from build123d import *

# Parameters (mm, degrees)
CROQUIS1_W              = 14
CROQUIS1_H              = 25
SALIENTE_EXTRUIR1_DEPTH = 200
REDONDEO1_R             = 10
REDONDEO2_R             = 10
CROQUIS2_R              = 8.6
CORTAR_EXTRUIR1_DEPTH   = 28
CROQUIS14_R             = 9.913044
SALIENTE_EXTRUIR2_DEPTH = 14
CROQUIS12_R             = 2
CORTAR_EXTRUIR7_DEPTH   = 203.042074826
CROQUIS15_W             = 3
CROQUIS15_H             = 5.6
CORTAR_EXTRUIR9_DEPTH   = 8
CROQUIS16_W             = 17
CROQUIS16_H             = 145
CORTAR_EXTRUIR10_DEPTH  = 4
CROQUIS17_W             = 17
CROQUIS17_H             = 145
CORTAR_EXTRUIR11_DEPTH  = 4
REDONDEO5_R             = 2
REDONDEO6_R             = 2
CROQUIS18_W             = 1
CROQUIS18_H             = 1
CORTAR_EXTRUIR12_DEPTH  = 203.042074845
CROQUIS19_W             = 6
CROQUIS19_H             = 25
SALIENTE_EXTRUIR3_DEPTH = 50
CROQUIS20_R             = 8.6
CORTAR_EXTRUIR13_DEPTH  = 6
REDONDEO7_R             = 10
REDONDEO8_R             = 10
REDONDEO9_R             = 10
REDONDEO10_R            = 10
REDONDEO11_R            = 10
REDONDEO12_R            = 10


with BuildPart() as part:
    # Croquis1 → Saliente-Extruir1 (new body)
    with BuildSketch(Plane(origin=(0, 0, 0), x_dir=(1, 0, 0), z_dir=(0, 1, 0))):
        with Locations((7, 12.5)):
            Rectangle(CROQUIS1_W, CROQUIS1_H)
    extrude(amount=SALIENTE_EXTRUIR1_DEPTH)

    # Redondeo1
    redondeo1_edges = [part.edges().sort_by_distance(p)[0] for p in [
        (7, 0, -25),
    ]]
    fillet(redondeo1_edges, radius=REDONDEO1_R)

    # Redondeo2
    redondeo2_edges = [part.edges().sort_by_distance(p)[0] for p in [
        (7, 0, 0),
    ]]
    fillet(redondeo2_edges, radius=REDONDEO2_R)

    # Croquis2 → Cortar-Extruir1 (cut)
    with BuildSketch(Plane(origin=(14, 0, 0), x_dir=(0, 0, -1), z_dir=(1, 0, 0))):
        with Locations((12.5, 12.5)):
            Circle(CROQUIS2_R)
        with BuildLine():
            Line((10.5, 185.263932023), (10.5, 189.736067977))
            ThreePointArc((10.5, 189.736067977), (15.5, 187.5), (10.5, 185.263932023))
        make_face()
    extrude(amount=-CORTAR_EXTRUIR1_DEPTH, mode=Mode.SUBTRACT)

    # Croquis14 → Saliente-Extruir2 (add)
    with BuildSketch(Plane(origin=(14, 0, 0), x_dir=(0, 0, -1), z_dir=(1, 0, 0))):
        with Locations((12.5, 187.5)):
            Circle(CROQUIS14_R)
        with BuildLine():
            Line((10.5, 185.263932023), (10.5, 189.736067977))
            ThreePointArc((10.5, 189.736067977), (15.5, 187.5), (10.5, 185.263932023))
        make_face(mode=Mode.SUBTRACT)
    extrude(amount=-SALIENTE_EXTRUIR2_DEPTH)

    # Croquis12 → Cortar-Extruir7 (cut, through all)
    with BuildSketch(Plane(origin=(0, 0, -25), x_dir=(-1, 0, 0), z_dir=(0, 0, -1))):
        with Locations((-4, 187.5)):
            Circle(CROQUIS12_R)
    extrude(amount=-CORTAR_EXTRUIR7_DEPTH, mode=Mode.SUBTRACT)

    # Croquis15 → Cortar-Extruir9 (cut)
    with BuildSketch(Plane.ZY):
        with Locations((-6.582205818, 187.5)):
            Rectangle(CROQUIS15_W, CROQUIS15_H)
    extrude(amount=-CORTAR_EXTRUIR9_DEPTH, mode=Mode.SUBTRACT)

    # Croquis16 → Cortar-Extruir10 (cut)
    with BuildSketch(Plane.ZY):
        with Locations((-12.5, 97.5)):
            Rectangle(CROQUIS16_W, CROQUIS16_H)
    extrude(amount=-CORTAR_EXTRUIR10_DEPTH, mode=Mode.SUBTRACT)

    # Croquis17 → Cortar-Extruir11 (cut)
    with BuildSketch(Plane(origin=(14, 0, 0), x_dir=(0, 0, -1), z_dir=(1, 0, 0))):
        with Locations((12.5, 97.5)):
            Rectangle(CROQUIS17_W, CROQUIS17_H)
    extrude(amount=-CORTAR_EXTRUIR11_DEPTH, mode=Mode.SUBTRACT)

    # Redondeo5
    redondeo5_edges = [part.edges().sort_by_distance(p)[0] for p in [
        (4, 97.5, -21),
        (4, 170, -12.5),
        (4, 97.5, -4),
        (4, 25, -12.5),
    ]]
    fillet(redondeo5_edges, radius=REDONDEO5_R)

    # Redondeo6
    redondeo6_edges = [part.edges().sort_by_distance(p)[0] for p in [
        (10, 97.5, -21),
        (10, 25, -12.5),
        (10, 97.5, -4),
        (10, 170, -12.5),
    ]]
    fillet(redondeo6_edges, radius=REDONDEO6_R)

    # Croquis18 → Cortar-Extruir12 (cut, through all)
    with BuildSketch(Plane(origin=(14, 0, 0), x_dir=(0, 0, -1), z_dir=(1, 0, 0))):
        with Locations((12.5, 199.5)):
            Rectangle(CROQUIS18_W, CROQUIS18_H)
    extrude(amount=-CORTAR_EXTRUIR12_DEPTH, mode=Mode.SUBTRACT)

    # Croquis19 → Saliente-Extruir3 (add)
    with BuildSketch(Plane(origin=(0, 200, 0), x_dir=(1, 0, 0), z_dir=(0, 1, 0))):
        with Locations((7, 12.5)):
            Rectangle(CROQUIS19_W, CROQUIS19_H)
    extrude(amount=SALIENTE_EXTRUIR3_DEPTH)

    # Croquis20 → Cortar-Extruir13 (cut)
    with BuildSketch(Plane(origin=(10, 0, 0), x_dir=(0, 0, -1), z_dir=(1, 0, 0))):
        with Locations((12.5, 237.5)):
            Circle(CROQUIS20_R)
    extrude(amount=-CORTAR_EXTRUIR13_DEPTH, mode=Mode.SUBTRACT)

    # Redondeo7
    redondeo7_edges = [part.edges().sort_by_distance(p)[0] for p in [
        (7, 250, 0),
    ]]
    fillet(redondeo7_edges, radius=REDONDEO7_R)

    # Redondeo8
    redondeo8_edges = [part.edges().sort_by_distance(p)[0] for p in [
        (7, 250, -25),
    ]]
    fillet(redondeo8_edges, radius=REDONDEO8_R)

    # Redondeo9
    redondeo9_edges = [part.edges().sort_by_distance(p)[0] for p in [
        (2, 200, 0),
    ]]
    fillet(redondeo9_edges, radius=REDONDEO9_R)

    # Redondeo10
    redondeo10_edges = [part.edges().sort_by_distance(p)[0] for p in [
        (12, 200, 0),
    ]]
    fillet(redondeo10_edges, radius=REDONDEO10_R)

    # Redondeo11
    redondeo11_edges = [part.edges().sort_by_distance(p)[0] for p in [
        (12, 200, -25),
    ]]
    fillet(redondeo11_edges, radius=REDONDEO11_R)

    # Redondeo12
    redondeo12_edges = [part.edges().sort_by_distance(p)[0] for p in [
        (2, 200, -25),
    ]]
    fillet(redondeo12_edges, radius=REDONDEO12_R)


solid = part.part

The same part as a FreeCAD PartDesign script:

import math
import FreeCAD as App
import Part
import Sketcher


def edges_at(feature, points):
    """Names of the edges that pass closest to the given points."""
    edges = feature.Shape.Edges
    near = lambda p: min(range(len(edges)), key=lambda i: edges[i].distToShape(Part.Vertex(*p))[0])
    return sorted({f"Edge{near(p) + 1}" for p in points})

doc = App.newDocument("Part")
body = doc.addObject("PartDesign::Body", "Body")

# Sketch on XZ plane
sketch1 = doc.addObject("Sketcher::SketchObject", "Sketch")
body.addObject(sketch1)
sketch1.AttachmentSupport = (doc.XZ_Plane, [""])
sketch1.MapMode = "FlatFace"
sketch1.addGeometry(Part.LineSegment(App.Vector(0, -25, 0), App.Vector(0, 0, 0)), False)
sketch1.addGeometry(Part.LineSegment(App.Vector(0, 0, 0), App.Vector(14, 0, 0)), False)
sketch1.addGeometry(Part.LineSegment(App.Vector(14, 0, 0), App.Vector(14, -25, 0)), False)
sketch1.addGeometry(Part.LineSegment(App.Vector(14, -25, 0), App.Vector(0, -25, 0)), False)
sketch1.addConstraint(Sketcher.Constraint("Coincident", 0, 2, 1, 1))
sketch1.addConstraint(Sketcher.Constraint("Coincident", 1, 2, 2, 1))
sketch1.addConstraint(Sketcher.Constraint("Coincident", 2, 2, 3, 1))
sketch1.addConstraint(Sketcher.Constraint("Coincident", 3, 2, 0, 1))
sketch1.addConstraint(Sketcher.Constraint("Vertical", 0))
sketch1.addConstraint(Sketcher.Constraint("Horizontal", 1))
sketch1.addConstraint(Sketcher.Constraint("Vertical", 2))
sketch1.addConstraint(Sketcher.Constraint("Horizontal", 3))
sketch1.addConstraint(Sketcher.Constraint("Coincident", 0, 2, -1, 1))
sketch1.addConstraint(Sketcher.Constraint("DistanceX", 1, 1, 1, 2, 14.0))
sketch1.addConstraint(Sketcher.Constraint("DistanceY", 0, 1, 0, 2, 25.0))
pad1 = doc.addObject("PartDesign::Pad", "Pad")
body.addObject(pad1)
pad1.Profile = sketch1
pad1.Length = 200
pad1.Reversed = True
doc.recompute()

fillet = doc.addObject("PartDesign::Fillet", "Fillet")
body.addObject(fillet)
fillet.Base = (pad1, edges_at(pad1, [(7, 0, -25)]))
fillet.Radius = 10
doc.recompute()

fillet2 = doc.addObject("PartDesign::Fillet", "Fillet001")
body.addObject(fillet2)
fillet2.Base = (fillet, edges_at(fillet, [(7, 0, 0)]))
fillet2.Radius = 10

# Sketch on YZ plane
sketch2 = doc.addObject("Sketcher::SketchObject", "Sketch001")
body.addObject(sketch2)
sketch2.AttachmentSupport = (doc.YZ_Plane, [""])
sketch2.MapMode = "FlatFace"
sketch2.AttachmentOffset = App.Placement(App.Vector(0, 0, 14), App.Rotation())
sketch2.addGeometry(Part.Circle(App.Vector(12.5, -12.5, 0), App.Vector(0, 0, 1), 8.6), False)
sketch2.addGeometry(Part.LineSegment(App.Vector(189.736068, -10.5, 0), App.Vector(185.263932, -10.5, 0)), False)
sketch2.addGeometry(Part.ArcOfCircle(Part.Circle(App.Vector(187.5, -12.5, 0), App.Vector(0, 0, 1), 3), math.radians(138.189685), math.radians(401.810315)), False)
sketch2.addConstraint(Sketcher.Constraint("Coincident", 1, 1, 2, 2))
sketch2.addConstraint(Sketcher.Constraint("Coincident", 2, 1, 1, 2))
sketch2.addConstraint(Sketcher.Constraint("Horizontal", 1))
sketch2.addConstraint(Sketcher.Constraint("Horizontal", 0, 3, 2, 3))
sketch2.addConstraint(Sketcher.Constraint("Radius", 2, 3.0))
sketch2.addConstraint(Sketcher.Constraint("Diameter", 0, 17.2))
sketch2.addConstraint(Sketcher.Constraint("DistanceX", 0, 3, 2, 3, 175.0))
sketch2.addConstraint(Sketcher.Constraint("DistanceY", 2, 3, 1, 1, 2.0))
sketch2.addConstraint(Sketcher.Constraint("DistanceX", -1, 1, 0, 3, 12.5))
sketch2.addConstraint(Sketcher.Constraint("DistanceY", 0, 3, -1, 1, 12.5))
pocket1 = doc.addObject("PartDesign::Pocket", "Pocket")
body.addObject(pocket1)
pocket1.Profile = sketch2
pocket1.Length = 28

# Sketch on YZ plane
sketch3 = doc.addObject("Sketcher::SketchObject", "Sketch002")
body.addObject(sketch3)
sketch3.AttachmentSupport = (doc.YZ_Plane, [""])
sketch3.MapMode = "FlatFace"
sketch3.AttachmentOffset = App.Placement(App.Vector(0, 0, 14), App.Rotation())
sketch3.addGeometry(Part.Circle(App.Vector(187.5, -12.5, 0), App.Vector(0, 0, 1), 9.913044), False)
sketch3.addGeometry(Part.ArcOfCircle(Part.Circle(App.Vector(187.5, -12.5, 0), App.Vector(0, 0, 1), 3), math.radians(138.189685), math.radians(401.810315)), False)
sketch3.addGeometry(Part.LineSegment(App.Vector(185.263932, -10.5, 0), App.Vector(189.736068, -10.5, 0)), False)
sketch3.addConstraint(Sketcher.Constraint("Coincident", 1, 1, 2, 1))
sketch3.addConstraint(Sketcher.Constraint("Coincident", 2, 2, 1, 2))
sketch3.addConstraint(Sketcher.Constraint("Horizontal", 2))
sketch3.addConstraint(Sketcher.Constraint("Coincident", 1, 3, 0, 3))
sketch3.addConstraint(Sketcher.Constraint("Radius", 1, 3.0))
sketch3.addConstraint(Sketcher.Constraint("DistanceY", 0, 3, 1, 1, 2.0))
sketch3.addConstraint(Sketcher.Constraint("DistanceX", -1, 1, 0, 3, 187.5))
sketch3.addConstraint(Sketcher.Constraint("DistanceY", 0, 3, -1, 1, 12.5))
sketch3.addConstraint(Sketcher.Constraint("Diameter", 0, 19.826088))
pad2 = doc.addObject("PartDesign::Pad", "Pad001")
body.addObject(pad2)
pad2.Profile = sketch3
pad2.Length = 14
pad2.Reversed = True

# Sketch on XY plane
sketch4 = doc.addObject("Sketcher::SketchObject", "Sketch003")
body.addObject(sketch4)
sketch4.AttachmentSupport = (doc.XY_Plane, [""])
sketch4.MapMode = "FlatFace"
sketch4.AttachmentOffset = App.Placement(App.Vector(0, 0, -25), App.Rotation())
sketch4.addGeometry(Part.Circle(App.Vector(4, 187.5, 0), App.Vector(0, 0, 1), 2), False)
sketch4.addConstraint(Sketcher.Constraint("Diameter", 0, 4.0))
sketch4.addConstraint(Sketcher.Constraint("DistanceX", -1, 1, 0, 3, 4.0))
sketch4.addConstraint(Sketcher.Constraint("DistanceY", -1, 1, 0, 3, 187.5))
pocket2 = doc.addObject("PartDesign::Pocket", "Pocket001")
body.addObject(pocket2)
pocket2.Profile = sketch4
pocket2.Type = "ThroughAll"
pocket2.Reversed = True

# Sketch on YZ plane
sketch5 = doc.addObject("Sketcher::SketchObject", "Sketch004")
body.addObject(sketch5)
sketch5.AttachmentSupport = (doc.YZ_Plane, [""])
sketch5.MapMode = "FlatFace"
sketch5.addGeometry(Part.LineSegment(App.Vector(190.3, -8.082206, 0), App.Vector(184.7, -8.082206, 0)), False)
sketch5.addGeometry(Part.LineSegment(App.Vector(184.7, -8.082206, 0), App.Vector(184.7, -5.082206, 0)), False)
sketch5.addGeometry(Part.LineSegment(App.Vector(184.7, -5.082206, 0), App.Vector(190.3, -5.082206, 0)), False)
sketch5.addGeometry(Part.LineSegment(App.Vector(190.3, -5.082206, 0), App.Vector(190.3, -8.082206, 0)), False)
sketch5.addConstraint(Sketcher.Constraint("Coincident", 0, 2, 1, 1))
sketch5.addConstraint(Sketcher.Constraint("Coincident", 1, 2, 2, 1))
sketch5.addConstraint(Sketcher.Constraint("Coincident", 2, 2, 3, 1))
sketch5.addConstraint(Sketcher.Constraint("Coincident", 3, 2, 0, 1))
sketch5.addConstraint(Sketcher.Constraint("Horizontal", 0))
sketch5.addConstraint(Sketcher.Constraint("Vertical", 1))
sketch5.addConstraint(Sketcher.Constraint("Horizontal", 2))
sketch5.addConstraint(Sketcher.Constraint("Vertical", 3))
sketch5.addConstraint(Sketcher.Constraint("DistanceY", 1, 1, 1, 2, 3.0))
sketch5.addConstraint(Sketcher.Constraint("DistanceX", 0, 2, 0, 1, 5.6))
sketch5.addConstraint(Sketcher.Constraint("DistanceX", -1, 1, 0, 2, 184.7))
sketch5.addConstraint(Sketcher.Constraint("DistanceY", 0, 2, -1, 1, 8.082206))
pocket3 = doc.addObject("PartDesign::Pocket", "Pocket002")
body.addObject(pocket3)
pocket3.Profile = sketch5
pocket3.Length = 8
pocket3.Reversed = True

# Sketch on YZ plane
sketch6 = doc.addObject("Sketcher::SketchObject", "Sketch005")
body.addObject(sketch6)
sketch6.AttachmentSupport = (doc.YZ_Plane, [""])
sketch6.MapMode = "FlatFace"
sketch6.addGeometry(Part.LineSegment(App.Vector(170, -21, 0), App.Vector(25, -21, 0)), False)
sketch6.addGeometry(Part.LineSegment(App.Vector(25, -21, 0), App.Vector(25, -4, 0)), False)
sketch6.addGeometry(Part.LineSegment(App.Vector(25, -4, 0), App.Vector(170, -4, 0)), False)
sketch6.addGeometry(Part.LineSegment(App.Vector(170, -4, 0), App.Vector(170, -21, 0)), False)
sketch6.addConstraint(Sketcher.Constraint("Coincident", 0, 2, 1, 1))
sketch6.addConstraint(Sketcher.Constraint("Coincident", 1, 2, 2, 1))
sketch6.addConstraint(Sketcher.Constraint("Coincident", 2, 2, 3, 1))
sketch6.addConstraint(Sketcher.Constraint("Coincident", 3, 2, 0, 1))
sketch6.addConstraint(Sketcher.Constraint("Horizontal", 0))
sketch6.addConstraint(Sketcher.Constraint("Vertical", 1))
sketch6.addConstraint(Sketcher.Constraint("Horizontal", 2))
sketch6.addConstraint(Sketcher.Constraint("Vertical", 3))
sketch6.addConstraint(Sketcher.Constraint("DistanceX", 0, 2, 0, 1, 145.0))
sketch6.addConstraint(Sketcher.Constraint("DistanceY", 1, 1, 1, 2, 17.0))
sketch6.addConstraint(Sketcher.Constraint("DistanceX", -1, 1, 0, 2, 25.0))
sketch6.addConstraint(Sketcher.Constraint("DistanceY", 0, 2, -1, 1, 21.0))
pocket4 = doc.addObject("PartDesign::Pocket", "Pocket003")
body.addObject(pocket4)
pocket4.Profile = sketch6
pocket4.Length = 4
pocket4.Reversed = True

# Sketch on YZ plane
sketch7 = doc.addObject("Sketcher::SketchObject", "Sketch006")
body.addObject(sketch7)
sketch7.AttachmentSupport = (doc.YZ_Plane, [""])
sketch7.MapMode = "FlatFace"
sketch7.AttachmentOffset = App.Placement(App.Vector(0, 0, 14), App.Rotation())
sketch7.addGeometry(Part.LineSegment(App.Vector(170, -4, 0), App.Vector(25, -4, 0)), False)
sketch7.addGeometry(Part.LineSegment(App.Vector(25, -4, 0), App.Vector(25, -21, 0)), False)
sketch7.addGeometry(Part.LineSegment(App.Vector(25, -21, 0), App.Vector(170, -21, 0)), False)
sketch7.addGeometry(Part.LineSegment(App.Vector(170, -21, 0), App.Vector(170, -4, 0)), False)
sketch7.addConstraint(Sketcher.Constraint("Coincident", 0, 2, 1, 1))
sketch7.addConstraint(Sketcher.Constraint("Coincident", 1, 2, 2, 1))
sketch7.addConstraint(Sketcher.Constraint("Coincident", 2, 2, 3, 1))
sketch7.addConstraint(Sketcher.Constraint("Coincident", 3, 2, 0, 1))
sketch7.addConstraint(Sketcher.Constraint("Horizontal", 0))
sketch7.addConstraint(Sketcher.Constraint("Vertical", 1))
sketch7.addConstraint(Sketcher.Constraint("Horizontal", 2))
sketch7.addConstraint(Sketcher.Constraint("Vertical", 3))
sketch7.addConstraint(Sketcher.Constraint("DistanceX", 0, 2, 0, 1, 145.0))
sketch7.addConstraint(Sketcher.Constraint("DistanceY", 1, 2, 1, 1, 17.0))
sketch7.addConstraint(Sketcher.Constraint("DistanceX", -1, 1, 0, 2, 25.0))
sketch7.addConstraint(Sketcher.Constraint("DistanceY", 0, 2, -1, 1, 4.0))
pocket5 = doc.addObject("PartDesign::Pocket", "Pocket004")
body.addObject(pocket5)
pocket5.Profile = sketch7
pocket5.Length = 4
doc.recompute()

fillet3 = doc.addObject("PartDesign::Fillet", "Fillet002")
body.addObject(fillet3)
fillet3.Base = (pocket5, edges_at(pocket5, [
    (4, 97.5, -21),
    (4, 170, -12.5),
    (4, 97.5, -4),
    (4, 25, -12.5),
]))
fillet3.Radius = 2
doc.recompute()

fillet4 = doc.addObject("PartDesign::Fillet", "Fillet003")
body.addObject(fillet4)
fillet4.Base = (fillet3, edges_at(fillet3, [
    (10, 97.5, -21),
    (10, 25, -12.5),
    (10, 97.5, -4),
    (10, 170, -12.5),
]))
fillet4.Radius = 2

# Sketch on YZ plane
sketch8 = doc.addObject("Sketcher::SketchObject", "Sketch007")
body.addObject(sketch8)
sketch8.AttachmentSupport = (doc.YZ_Plane, [""])
sketch8.MapMode = "FlatFace"
sketch8.AttachmentOffset = App.Placement(App.Vector(0, 0, 14), App.Rotation())
sketch8.addGeometry(Part.LineSegment(App.Vector(200, -12, 0), App.Vector(199, -12, 0)), False)
sketch8.addGeometry(Part.LineSegment(App.Vector(199, -12, 0), App.Vector(199, -13, 0)), False)
sketch8.addGeometry(Part.LineSegment(App.Vector(199, -13, 0), App.Vector(200, -13, 0)), False)
sketch8.addGeometry(Part.LineSegment(App.Vector(200, -13, 0), App.Vector(200, -12, 0)), False)
sketch8.addConstraint(Sketcher.Constraint("Coincident", 0, 2, 1, 1))
sketch8.addConstraint(Sketcher.Constraint("Coincident", 1, 2, 2, 1))
sketch8.addConstraint(Sketcher.Constraint("Coincident", 2, 2, 3, 1))
sketch8.addConstraint(Sketcher.Constraint("Coincident", 3, 2, 0, 1))
sketch8.addConstraint(Sketcher.Constraint("Horizontal", 0))
sketch8.addConstraint(Sketcher.Constraint("Vertical", 1))
sketch8.addConstraint(Sketcher.Constraint("Horizontal", 2))
sketch8.addConstraint(Sketcher.Constraint("Vertical", 3))
sketch8.addConstraint(Sketcher.Constraint("Equal", 2, 1))
sketch8.addConstraint(Sketcher.Constraint("DistanceX", 0, 2, 0, 1, 1.0))
sketch8.addConstraint(Sketcher.Constraint("DistanceX", -1, 1, 0, 2, 199.0))
sketch8.addConstraint(Sketcher.Constraint("DistanceY", 0, 2, -1, 1, 12.0))
pocket6 = doc.addObject("PartDesign::Pocket", "Pocket005")
body.addObject(pocket6)
pocket6.Profile = sketch8
pocket6.Type = "ThroughAll"

# Sketch on XZ plane
sketch9 = doc.addObject("Sketcher::SketchObject", "Sketch008")
body.addObject(sketch9)
sketch9.AttachmentSupport = (doc.XZ_Plane, [""])
sketch9.MapMode = "FlatFace"
sketch9.AttachmentOffset = App.Placement(App.Vector(0, 0, -200), App.Rotation())
sketch9.addGeometry(Part.LineSegment(App.Vector(4, -25, 0), App.Vector(4, 0, 0)), False)
sketch9.addGeometry(Part.LineSegment(App.Vector(4, 0, 0), App.Vector(10, 0, 0)), False)
sketch9.addGeometry(Part.LineSegment(App.Vector(10, 0, 0), App.Vector(10, -25, 0)), False)
sketch9.addGeometry(Part.LineSegment(App.Vector(10, -25, 0), App.Vector(4, -25, 0)), False)
sketch9.addConstraint(Sketcher.Constraint("Coincident", 0, 2, 1, 1))
sketch9.addConstraint(Sketcher.Constraint("Coincident", 1, 2, 2, 1))
sketch9.addConstraint(Sketcher.Constraint("Coincident", 2, 2, 3, 1))
sketch9.addConstraint(Sketcher.Constraint("Coincident", 3, 2, 0, 1))
sketch9.addConstraint(Sketcher.Constraint("Vertical", 0))
sketch9.addConstraint(Sketcher.Constraint("Horizontal", 1))
sketch9.addConstraint(Sketcher.Constraint("Vertical", 2))
sketch9.addConstraint(Sketcher.Constraint("Horizontal", 3))
sketch9.addConstraint(Sketcher.Constraint("PointOnObject", 0, 2, -1))
sketch9.addConstraint(Sketcher.Constraint("DistanceX", 1, 1, 1, 2, 6.0))
sketch9.addConstraint(Sketcher.Constraint("DistanceY", 0, 1, 0, 2, 25.0))
sketch9.addConstraint(Sketcher.Constraint("DistanceX", -1, 1, 0, 2, 4.0))
pad3 = doc.addObject("PartDesign::Pad", "Pad002")
body.addObject(pad3)
pad3.Profile = sketch9
pad3.Length = 50
pad3.Reversed = True

# Sketch on YZ plane
sketch10 = doc.addObject("Sketcher::SketchObject", "Sketch009")
body.addObject(sketch10)
sketch10.AttachmentSupport = (doc.YZ_Plane, [""])
sketch10.MapMode = "FlatFace"
sketch10.AttachmentOffset = App.Placement(App.Vector(0, 0, 10), App.Rotation())
sketch10.addGeometry(Part.Circle(App.Vector(237.5, -12.5, 0), App.Vector(0, 0, 1), 8.6), False)
sketch10.addConstraint(Sketcher.Constraint("Diameter", 0, 17.2))
sketch10.addConstraint(Sketcher.Constraint("DistanceX", -1, 1, 0, 3, 237.5))
sketch10.addConstraint(Sketcher.Constraint("DistanceY", 0, 3, -1, 1, 12.5))
pocket7 = doc.addObject("PartDesign::Pocket", "Pocket006")
body.addObject(pocket7)
pocket7.Profile = sketch10
pocket7.Length = 6
doc.recompute()

fillet5 = doc.addObject("PartDesign::Fillet", "Fillet004")
body.addObject(fillet5)
fillet5.Base = (pocket7, edges_at(pocket7, [(7, 250, 0)]))
fillet5.Radius = 10
doc.recompute()

fillet6 = doc.addObject("PartDesign::Fillet", "Fillet005")
body.addObject(fillet6)
fillet6.Base = (fillet5, edges_at(fillet5, [(7, 250, -25)]))
fillet6.Radius = 10
doc.recompute()

fillet7 = doc.addObject("PartDesign::Fillet", "Fillet006")
body.addObject(fillet7)
fillet7.Base = (fillet6, edges_at(fillet6, [(2, 200, 0)]))
fillet7.Radius = 10
doc.recompute()

fillet8 = doc.addObject("PartDesign::Fillet", "Fillet007")
body.addObject(fillet8)
fillet8.Base = (fillet7, edges_at(fillet7, [(12, 200, 0)]))
fillet8.Radius = 10
doc.recompute()

fillet9 = doc.addObject("PartDesign::Fillet", "Fillet008")
body.addObject(fillet9)
fillet9.Base = (fillet8, edges_at(fillet8, [(12, 200, -25)]))
fillet9.Radius = 10
doc.recompute()

fillet10 = doc.addObject("PartDesign::Fillet", "Fillet009")
body.addObject(fillet10)
fillet10.Base = (fillet9, edges_at(fillet9, [(2, 200, -25)]))
fillet10.Radius = 10

doc.recompute()
